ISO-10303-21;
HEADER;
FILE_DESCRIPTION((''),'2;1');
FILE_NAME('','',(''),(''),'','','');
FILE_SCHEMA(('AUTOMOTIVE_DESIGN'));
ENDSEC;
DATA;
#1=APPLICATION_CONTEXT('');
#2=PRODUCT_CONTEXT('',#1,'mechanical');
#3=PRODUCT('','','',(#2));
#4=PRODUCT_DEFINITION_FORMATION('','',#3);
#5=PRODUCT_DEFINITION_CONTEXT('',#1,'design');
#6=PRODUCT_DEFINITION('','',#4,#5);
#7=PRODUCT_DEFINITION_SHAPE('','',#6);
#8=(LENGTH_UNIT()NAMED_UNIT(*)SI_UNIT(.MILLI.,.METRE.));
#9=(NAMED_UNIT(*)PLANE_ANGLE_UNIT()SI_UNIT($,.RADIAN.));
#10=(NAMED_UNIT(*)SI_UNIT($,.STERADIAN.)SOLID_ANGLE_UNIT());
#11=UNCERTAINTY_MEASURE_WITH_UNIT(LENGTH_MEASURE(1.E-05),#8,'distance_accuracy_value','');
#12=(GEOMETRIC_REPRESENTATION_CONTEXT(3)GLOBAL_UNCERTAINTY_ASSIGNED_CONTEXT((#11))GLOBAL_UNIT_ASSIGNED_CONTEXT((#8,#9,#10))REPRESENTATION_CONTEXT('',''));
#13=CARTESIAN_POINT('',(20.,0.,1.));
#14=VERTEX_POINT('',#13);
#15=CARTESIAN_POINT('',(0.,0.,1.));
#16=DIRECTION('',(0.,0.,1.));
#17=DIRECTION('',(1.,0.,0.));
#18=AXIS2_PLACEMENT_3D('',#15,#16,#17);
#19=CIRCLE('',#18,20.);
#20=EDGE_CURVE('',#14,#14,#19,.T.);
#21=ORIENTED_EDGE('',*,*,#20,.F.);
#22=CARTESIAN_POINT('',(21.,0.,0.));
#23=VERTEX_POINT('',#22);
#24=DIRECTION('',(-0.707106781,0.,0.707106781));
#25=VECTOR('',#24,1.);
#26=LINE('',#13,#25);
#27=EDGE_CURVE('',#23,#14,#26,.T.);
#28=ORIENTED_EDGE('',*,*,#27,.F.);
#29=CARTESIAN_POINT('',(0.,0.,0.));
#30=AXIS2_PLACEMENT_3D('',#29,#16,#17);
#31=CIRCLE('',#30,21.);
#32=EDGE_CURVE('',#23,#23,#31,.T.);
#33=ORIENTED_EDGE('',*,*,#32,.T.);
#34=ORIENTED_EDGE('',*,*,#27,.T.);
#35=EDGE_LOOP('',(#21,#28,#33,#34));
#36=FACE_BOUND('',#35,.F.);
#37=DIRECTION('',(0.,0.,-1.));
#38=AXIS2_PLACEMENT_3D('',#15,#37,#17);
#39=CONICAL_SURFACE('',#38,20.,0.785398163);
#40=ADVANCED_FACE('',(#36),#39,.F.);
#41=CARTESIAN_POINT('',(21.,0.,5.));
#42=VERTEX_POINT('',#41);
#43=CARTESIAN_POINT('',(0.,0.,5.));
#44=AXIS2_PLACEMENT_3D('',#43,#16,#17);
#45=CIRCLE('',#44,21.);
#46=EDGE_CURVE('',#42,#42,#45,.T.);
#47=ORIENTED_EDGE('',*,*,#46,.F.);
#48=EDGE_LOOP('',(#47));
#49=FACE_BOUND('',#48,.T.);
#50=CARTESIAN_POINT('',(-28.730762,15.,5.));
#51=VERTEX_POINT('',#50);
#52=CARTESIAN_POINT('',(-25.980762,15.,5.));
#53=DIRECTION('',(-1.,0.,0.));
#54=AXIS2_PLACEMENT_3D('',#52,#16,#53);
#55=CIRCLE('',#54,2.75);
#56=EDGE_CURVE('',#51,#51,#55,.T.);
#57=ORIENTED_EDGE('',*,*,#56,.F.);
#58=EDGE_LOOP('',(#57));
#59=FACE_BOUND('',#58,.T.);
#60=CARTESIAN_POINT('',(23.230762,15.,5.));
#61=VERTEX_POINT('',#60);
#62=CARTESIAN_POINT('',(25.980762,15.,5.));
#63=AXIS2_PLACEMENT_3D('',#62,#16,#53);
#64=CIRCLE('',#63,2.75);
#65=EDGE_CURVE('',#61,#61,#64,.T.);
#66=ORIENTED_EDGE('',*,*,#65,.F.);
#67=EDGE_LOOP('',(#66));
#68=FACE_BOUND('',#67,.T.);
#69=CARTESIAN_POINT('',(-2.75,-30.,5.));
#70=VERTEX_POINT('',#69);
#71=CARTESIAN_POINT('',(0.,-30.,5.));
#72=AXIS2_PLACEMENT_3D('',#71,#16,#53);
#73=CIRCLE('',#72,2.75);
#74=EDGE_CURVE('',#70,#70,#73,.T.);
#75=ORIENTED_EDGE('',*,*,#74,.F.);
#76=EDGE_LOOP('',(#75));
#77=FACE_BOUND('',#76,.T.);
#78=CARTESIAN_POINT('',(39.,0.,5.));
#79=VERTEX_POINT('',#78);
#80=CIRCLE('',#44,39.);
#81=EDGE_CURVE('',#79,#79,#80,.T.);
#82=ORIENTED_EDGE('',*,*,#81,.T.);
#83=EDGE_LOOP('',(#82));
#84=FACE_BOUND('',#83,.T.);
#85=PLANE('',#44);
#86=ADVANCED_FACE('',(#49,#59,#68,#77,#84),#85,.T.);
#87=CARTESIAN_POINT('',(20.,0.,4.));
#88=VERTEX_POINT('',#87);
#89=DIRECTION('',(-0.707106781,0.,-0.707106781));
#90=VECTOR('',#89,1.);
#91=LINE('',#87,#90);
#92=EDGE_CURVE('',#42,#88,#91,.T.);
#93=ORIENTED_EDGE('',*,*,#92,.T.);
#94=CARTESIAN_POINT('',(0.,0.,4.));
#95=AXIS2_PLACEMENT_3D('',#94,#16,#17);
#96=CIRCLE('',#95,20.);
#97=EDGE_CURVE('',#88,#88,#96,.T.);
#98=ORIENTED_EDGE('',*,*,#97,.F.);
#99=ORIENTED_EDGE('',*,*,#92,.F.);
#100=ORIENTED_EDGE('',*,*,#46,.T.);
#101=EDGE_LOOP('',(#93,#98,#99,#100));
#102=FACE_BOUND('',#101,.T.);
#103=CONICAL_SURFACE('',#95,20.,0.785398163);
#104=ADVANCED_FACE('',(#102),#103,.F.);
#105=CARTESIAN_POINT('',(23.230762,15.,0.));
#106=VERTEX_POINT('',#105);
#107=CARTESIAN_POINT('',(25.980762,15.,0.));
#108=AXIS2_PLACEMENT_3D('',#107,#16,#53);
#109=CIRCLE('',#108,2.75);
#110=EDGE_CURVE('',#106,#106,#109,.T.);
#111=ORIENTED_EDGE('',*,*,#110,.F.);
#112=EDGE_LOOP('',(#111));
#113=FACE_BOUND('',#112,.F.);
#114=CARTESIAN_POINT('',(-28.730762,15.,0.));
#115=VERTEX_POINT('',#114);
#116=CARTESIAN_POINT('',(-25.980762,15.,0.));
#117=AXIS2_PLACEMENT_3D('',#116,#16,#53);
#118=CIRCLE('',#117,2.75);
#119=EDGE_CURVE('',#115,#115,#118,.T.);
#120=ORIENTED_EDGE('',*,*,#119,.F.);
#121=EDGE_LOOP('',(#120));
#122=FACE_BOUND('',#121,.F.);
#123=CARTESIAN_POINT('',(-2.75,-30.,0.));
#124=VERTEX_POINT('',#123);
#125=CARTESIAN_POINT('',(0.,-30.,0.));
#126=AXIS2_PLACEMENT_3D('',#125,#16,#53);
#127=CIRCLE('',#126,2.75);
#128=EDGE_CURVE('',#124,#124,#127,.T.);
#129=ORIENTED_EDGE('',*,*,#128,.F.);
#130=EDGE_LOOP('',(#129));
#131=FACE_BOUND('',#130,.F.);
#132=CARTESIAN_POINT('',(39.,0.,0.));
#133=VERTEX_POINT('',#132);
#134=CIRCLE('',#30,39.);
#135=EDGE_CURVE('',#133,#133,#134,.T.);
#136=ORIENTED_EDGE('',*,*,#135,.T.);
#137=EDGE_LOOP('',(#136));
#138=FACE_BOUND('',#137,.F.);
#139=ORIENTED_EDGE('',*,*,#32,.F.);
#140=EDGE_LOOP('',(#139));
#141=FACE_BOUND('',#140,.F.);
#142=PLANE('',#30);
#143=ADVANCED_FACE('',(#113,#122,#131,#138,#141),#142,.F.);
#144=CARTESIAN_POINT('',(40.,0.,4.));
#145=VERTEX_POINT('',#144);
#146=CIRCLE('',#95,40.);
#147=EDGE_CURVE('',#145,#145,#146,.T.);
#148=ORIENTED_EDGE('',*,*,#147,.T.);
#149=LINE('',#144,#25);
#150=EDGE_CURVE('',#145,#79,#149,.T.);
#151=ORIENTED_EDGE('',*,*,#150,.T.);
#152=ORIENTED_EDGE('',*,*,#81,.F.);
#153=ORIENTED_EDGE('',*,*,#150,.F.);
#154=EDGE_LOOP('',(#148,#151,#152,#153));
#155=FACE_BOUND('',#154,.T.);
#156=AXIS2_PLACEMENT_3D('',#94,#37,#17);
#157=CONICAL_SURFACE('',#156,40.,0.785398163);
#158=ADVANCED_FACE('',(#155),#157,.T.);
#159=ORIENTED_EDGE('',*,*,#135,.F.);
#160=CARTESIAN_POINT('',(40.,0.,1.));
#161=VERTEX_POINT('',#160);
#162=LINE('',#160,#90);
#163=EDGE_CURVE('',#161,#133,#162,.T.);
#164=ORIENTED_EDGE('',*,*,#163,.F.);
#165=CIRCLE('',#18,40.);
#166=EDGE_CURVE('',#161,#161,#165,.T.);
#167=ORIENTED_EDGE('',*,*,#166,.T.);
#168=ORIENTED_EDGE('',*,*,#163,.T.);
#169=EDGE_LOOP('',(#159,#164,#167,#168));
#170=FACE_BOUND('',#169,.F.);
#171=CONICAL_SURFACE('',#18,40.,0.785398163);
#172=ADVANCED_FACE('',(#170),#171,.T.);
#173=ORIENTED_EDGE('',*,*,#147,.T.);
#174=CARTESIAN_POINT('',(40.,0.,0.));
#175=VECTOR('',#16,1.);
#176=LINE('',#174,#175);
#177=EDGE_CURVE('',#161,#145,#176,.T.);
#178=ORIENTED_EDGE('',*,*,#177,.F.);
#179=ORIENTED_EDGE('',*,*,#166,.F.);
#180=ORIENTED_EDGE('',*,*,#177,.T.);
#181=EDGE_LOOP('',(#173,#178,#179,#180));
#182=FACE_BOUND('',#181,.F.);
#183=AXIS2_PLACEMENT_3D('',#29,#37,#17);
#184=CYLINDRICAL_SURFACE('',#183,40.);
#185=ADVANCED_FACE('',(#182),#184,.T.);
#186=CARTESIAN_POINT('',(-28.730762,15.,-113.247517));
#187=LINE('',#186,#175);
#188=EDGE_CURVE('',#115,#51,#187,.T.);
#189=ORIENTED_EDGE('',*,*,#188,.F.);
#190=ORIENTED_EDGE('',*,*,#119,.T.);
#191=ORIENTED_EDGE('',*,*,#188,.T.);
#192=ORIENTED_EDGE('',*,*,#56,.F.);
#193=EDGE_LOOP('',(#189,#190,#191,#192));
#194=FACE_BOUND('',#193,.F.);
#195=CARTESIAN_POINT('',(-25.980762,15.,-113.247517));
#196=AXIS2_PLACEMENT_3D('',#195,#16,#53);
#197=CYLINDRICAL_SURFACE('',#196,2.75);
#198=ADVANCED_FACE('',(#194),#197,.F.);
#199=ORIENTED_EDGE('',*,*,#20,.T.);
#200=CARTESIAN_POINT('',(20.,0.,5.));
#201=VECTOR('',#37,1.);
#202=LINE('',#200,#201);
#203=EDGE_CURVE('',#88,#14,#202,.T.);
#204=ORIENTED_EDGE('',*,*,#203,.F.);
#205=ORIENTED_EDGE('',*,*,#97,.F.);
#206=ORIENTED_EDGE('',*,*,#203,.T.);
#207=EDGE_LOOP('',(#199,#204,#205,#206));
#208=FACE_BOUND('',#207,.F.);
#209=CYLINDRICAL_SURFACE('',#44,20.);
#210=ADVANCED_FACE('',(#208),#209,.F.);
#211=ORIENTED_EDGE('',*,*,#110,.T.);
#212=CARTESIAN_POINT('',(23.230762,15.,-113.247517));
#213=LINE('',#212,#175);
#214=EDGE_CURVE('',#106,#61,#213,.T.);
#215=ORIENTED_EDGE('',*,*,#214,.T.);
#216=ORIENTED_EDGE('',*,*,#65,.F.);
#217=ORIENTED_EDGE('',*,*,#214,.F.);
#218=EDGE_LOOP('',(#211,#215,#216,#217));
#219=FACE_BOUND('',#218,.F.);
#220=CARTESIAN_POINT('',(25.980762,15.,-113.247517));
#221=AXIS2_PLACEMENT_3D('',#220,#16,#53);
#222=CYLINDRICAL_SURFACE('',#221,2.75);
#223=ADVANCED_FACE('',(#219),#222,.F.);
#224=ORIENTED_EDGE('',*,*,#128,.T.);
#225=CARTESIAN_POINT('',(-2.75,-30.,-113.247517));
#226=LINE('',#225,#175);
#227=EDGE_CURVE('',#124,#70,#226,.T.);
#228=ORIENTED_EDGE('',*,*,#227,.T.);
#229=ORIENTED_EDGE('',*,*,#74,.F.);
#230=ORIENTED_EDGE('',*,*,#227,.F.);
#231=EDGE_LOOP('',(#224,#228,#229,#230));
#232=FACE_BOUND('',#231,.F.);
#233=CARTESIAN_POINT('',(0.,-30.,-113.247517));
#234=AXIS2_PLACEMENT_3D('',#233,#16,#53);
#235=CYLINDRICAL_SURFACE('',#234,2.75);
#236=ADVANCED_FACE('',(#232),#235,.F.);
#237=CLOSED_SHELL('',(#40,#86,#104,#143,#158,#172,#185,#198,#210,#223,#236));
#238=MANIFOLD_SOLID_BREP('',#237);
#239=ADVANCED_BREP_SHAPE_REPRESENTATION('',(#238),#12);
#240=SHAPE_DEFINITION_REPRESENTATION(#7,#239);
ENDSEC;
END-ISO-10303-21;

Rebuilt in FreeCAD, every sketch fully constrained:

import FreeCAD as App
import Part
import Sketcher
from FreeCAD import Vector
Q = App.Units.Quantity


def edges_at(feature, points):
    """Names of the edges that pass closest to the given points."""
    edges = feature.Shape.Edges
    near = lambda p: min(range(len(edges)), key=lambda i: edges[i].distToShape(Part.Vertex(*p))[0])
    return sorted({f"Edge{near(p) + 1}" for p in points})

doc = App.newDocument("Part")
body = doc.addObject("PartDesign::Body", "Body")

sketch1 = body.newObject("Sketcher::SketchObject", "Sketch")
sketch1.AttachmentSupport = (doc.getObject("XY_Plane"), [""])
sketch1.MapMode = "FlatFace"
sketch1.addGeometry(Part.Circle(Vector(0, 0, 0), Vector(0, 0, 1), 40), False)
sketch1.addConstraint(Sketcher.Constraint("Coincident", 0, 3, -1, 1))
sketch1.addConstraint(Sketcher.Constraint("Diameter", 0, Q("80 mm")))
pad1 = body.newObject("PartDesign::Pad", "Pad")
pad1.Profile = sketch1
pad1.Length = 5

sketch2 = body.newObject("Sketcher::SketchObject", "Sketch001")
sketch2.AttachmentSupport = (doc.getObject("XY_Plane"), [""])
sketch2.MapMode = "FlatFace"
sketch2.addGeometry(Part.Circle(Vector(0, -30, 0), Vector(0, 0, 1), 2.8), False)
sketch2.addGeometry(Part.Circle(Vector(26, 15, 0), Vector(0, 0, 1), 2.8), False)
sketch2.addGeometry(Part.Circle(Vector(-26, 15, 0), Vector(0, 0, 1), 2.8), False)
sketch2.addConstraint(Sketcher.Constraint("Equal", 0, 1))
sketch2.addConstraint(Sketcher.Constraint("Equal", 1, 2))
sketch2.addConstraint(Sketcher.Constraint("Symmetric", 1, 3, 2, 3, -2))
sketch2.addConstraint(Sketcher.Constraint("PointOnObject", 0, 3, -2))
sketch2.addConstraint(Sketcher.Constraint("Diameter", 0, Q("5.5 mm")))
sketch2.addConstraint(Sketcher.Constraint("DistanceY", 0, 3, -1, 1, Q("30 mm")))
sketch2.addConstraint(Sketcher.Constraint("DistanceY", -1, 1, 1, 3, Q("15 mm")))
sketch2.addConstraint(Sketcher.Constraint("DistanceX", -1, 1, 1, 3, Q("25.980762 mm")))
doc.recompute()
hole = body.newObject("PartDesign::Hole", "Hole")
hole.Profile = sketch2
hole.ThreadType = "None"
hole.Diameter = 5.5
hole.DepthType = "ThroughAll"
hole.Reversed = True

sketch3 = body.newObject("Sketcher::SketchObject", "Sketch002")
sketch3.AttachmentSupport = (doc.getObject("XY_Plane"), [""])
sketch3.MapMode = "FlatFace"
sketch3.AttachmentOffset = App.Placement(Vector(0, 0, 5), App.Rotation())
sketch3.addGeometry(Part.Circle(Vector(0, 0, 0), Vector(0, 0, 1), 20), False)
sketch3.addConstraint(Sketcher.Constraint("Coincident", 0, 3, -1, 1))
sketch3.addConstraint(Sketcher.Constraint("Diameter", 0, Q("40 mm")))
pocket1 = body.newObject("PartDesign::Pocket", "Pocket")
pocket1.Profile = sketch3
pocket1.Type = "ThroughAll"
doc.recompute()

chamfer = body.newObject("PartDesign::Chamfer", "Chamfer")
chamfer.Base = (pocket1, edges_at(pocket1, [
    (-40, 0, 5),
    (-40, 0, 0),
    (-20, 0, 5),
    (-20, 0, 0),
]))
chamfer.Size = 1

doc.recompute()
